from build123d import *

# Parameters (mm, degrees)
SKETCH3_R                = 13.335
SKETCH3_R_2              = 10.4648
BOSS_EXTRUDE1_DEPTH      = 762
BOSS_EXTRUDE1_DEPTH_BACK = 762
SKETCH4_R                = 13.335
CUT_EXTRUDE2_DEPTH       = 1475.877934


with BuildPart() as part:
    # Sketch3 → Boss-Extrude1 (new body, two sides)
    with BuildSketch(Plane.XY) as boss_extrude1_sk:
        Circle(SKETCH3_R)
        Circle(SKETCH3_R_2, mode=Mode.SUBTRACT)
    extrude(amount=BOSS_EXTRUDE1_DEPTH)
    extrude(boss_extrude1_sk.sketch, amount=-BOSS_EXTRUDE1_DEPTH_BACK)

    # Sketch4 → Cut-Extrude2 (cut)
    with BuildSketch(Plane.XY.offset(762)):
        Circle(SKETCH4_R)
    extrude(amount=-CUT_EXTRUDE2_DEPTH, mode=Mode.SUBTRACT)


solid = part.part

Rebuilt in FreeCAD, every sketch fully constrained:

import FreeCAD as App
import Part
import Sketcher
from FreeCAD import Vector
Q = App.Units.Quantity

doc = App.newDocument("Part")
body = doc.addObject("PartDesign::Body", "Body")

# Sketch on XY plane
sketch1 = body.newObject("Sketcher::SketchObject", "Sketch")
sketch1.AttachmentSupport = (doc.getObject("XY_Plane"), [""])
sketch1.MapMode = "FlatFace"
sketch1.addGeometry([
    Part.Circle(Vector(0, 0, 0), Vector(0, 0, 1), 13),
    Part.Circle(Vector(0, 0, 0), Vector(0, 0, 1), 10),
], False)
sketch1.addConstraint([
    Sketcher.Constraint("Coincident", 0, 3, -1, 1),
    Sketcher.Constraint("Coincident", 1, 3, -1, 1),
    Sketcher.Constraint("Diameter", 0, Q("1.05 in")),
    Sketcher.Constraint("Diameter", 1, Q("0.824 in")),
])
pad1 = body.newObject("PartDesign::Pad", "Pad")
pad1.Profile = sketch1
pad1.Type = "TwoLengths"
pad1.Length = Q("30 in")
pad1.Length2 = Q("30 in")

# Sketch on XY plane
sketch2 = body.newObject("Sketcher::SketchObject", "Sketch001")
sketch2.AttachmentSupport = (doc.getObject("XY_Plane"), [""])
sketch2.MapMode = "FlatFace"
sketch2.AttachmentOffset = App.Placement(Vector(0, 0, 30 * 25.4), App.Rotation())
sketch2.addGeometry(Part.Circle(Vector(0, 0, 0), Vector(0, 0, 1), 13), False)
sketch2.addConstraint([
    Sketcher.Constraint("Coincident", 0, 3, -1, 1),
    Sketcher.Constraint("Diameter", 0, Q("1.05 in")),
])
pocket1 = body.newObject("PartDesign::Pocket", "Pocket")
pocket1.Profile = sketch2
pocket1.Length = 1475.877934

doc.recompute()
